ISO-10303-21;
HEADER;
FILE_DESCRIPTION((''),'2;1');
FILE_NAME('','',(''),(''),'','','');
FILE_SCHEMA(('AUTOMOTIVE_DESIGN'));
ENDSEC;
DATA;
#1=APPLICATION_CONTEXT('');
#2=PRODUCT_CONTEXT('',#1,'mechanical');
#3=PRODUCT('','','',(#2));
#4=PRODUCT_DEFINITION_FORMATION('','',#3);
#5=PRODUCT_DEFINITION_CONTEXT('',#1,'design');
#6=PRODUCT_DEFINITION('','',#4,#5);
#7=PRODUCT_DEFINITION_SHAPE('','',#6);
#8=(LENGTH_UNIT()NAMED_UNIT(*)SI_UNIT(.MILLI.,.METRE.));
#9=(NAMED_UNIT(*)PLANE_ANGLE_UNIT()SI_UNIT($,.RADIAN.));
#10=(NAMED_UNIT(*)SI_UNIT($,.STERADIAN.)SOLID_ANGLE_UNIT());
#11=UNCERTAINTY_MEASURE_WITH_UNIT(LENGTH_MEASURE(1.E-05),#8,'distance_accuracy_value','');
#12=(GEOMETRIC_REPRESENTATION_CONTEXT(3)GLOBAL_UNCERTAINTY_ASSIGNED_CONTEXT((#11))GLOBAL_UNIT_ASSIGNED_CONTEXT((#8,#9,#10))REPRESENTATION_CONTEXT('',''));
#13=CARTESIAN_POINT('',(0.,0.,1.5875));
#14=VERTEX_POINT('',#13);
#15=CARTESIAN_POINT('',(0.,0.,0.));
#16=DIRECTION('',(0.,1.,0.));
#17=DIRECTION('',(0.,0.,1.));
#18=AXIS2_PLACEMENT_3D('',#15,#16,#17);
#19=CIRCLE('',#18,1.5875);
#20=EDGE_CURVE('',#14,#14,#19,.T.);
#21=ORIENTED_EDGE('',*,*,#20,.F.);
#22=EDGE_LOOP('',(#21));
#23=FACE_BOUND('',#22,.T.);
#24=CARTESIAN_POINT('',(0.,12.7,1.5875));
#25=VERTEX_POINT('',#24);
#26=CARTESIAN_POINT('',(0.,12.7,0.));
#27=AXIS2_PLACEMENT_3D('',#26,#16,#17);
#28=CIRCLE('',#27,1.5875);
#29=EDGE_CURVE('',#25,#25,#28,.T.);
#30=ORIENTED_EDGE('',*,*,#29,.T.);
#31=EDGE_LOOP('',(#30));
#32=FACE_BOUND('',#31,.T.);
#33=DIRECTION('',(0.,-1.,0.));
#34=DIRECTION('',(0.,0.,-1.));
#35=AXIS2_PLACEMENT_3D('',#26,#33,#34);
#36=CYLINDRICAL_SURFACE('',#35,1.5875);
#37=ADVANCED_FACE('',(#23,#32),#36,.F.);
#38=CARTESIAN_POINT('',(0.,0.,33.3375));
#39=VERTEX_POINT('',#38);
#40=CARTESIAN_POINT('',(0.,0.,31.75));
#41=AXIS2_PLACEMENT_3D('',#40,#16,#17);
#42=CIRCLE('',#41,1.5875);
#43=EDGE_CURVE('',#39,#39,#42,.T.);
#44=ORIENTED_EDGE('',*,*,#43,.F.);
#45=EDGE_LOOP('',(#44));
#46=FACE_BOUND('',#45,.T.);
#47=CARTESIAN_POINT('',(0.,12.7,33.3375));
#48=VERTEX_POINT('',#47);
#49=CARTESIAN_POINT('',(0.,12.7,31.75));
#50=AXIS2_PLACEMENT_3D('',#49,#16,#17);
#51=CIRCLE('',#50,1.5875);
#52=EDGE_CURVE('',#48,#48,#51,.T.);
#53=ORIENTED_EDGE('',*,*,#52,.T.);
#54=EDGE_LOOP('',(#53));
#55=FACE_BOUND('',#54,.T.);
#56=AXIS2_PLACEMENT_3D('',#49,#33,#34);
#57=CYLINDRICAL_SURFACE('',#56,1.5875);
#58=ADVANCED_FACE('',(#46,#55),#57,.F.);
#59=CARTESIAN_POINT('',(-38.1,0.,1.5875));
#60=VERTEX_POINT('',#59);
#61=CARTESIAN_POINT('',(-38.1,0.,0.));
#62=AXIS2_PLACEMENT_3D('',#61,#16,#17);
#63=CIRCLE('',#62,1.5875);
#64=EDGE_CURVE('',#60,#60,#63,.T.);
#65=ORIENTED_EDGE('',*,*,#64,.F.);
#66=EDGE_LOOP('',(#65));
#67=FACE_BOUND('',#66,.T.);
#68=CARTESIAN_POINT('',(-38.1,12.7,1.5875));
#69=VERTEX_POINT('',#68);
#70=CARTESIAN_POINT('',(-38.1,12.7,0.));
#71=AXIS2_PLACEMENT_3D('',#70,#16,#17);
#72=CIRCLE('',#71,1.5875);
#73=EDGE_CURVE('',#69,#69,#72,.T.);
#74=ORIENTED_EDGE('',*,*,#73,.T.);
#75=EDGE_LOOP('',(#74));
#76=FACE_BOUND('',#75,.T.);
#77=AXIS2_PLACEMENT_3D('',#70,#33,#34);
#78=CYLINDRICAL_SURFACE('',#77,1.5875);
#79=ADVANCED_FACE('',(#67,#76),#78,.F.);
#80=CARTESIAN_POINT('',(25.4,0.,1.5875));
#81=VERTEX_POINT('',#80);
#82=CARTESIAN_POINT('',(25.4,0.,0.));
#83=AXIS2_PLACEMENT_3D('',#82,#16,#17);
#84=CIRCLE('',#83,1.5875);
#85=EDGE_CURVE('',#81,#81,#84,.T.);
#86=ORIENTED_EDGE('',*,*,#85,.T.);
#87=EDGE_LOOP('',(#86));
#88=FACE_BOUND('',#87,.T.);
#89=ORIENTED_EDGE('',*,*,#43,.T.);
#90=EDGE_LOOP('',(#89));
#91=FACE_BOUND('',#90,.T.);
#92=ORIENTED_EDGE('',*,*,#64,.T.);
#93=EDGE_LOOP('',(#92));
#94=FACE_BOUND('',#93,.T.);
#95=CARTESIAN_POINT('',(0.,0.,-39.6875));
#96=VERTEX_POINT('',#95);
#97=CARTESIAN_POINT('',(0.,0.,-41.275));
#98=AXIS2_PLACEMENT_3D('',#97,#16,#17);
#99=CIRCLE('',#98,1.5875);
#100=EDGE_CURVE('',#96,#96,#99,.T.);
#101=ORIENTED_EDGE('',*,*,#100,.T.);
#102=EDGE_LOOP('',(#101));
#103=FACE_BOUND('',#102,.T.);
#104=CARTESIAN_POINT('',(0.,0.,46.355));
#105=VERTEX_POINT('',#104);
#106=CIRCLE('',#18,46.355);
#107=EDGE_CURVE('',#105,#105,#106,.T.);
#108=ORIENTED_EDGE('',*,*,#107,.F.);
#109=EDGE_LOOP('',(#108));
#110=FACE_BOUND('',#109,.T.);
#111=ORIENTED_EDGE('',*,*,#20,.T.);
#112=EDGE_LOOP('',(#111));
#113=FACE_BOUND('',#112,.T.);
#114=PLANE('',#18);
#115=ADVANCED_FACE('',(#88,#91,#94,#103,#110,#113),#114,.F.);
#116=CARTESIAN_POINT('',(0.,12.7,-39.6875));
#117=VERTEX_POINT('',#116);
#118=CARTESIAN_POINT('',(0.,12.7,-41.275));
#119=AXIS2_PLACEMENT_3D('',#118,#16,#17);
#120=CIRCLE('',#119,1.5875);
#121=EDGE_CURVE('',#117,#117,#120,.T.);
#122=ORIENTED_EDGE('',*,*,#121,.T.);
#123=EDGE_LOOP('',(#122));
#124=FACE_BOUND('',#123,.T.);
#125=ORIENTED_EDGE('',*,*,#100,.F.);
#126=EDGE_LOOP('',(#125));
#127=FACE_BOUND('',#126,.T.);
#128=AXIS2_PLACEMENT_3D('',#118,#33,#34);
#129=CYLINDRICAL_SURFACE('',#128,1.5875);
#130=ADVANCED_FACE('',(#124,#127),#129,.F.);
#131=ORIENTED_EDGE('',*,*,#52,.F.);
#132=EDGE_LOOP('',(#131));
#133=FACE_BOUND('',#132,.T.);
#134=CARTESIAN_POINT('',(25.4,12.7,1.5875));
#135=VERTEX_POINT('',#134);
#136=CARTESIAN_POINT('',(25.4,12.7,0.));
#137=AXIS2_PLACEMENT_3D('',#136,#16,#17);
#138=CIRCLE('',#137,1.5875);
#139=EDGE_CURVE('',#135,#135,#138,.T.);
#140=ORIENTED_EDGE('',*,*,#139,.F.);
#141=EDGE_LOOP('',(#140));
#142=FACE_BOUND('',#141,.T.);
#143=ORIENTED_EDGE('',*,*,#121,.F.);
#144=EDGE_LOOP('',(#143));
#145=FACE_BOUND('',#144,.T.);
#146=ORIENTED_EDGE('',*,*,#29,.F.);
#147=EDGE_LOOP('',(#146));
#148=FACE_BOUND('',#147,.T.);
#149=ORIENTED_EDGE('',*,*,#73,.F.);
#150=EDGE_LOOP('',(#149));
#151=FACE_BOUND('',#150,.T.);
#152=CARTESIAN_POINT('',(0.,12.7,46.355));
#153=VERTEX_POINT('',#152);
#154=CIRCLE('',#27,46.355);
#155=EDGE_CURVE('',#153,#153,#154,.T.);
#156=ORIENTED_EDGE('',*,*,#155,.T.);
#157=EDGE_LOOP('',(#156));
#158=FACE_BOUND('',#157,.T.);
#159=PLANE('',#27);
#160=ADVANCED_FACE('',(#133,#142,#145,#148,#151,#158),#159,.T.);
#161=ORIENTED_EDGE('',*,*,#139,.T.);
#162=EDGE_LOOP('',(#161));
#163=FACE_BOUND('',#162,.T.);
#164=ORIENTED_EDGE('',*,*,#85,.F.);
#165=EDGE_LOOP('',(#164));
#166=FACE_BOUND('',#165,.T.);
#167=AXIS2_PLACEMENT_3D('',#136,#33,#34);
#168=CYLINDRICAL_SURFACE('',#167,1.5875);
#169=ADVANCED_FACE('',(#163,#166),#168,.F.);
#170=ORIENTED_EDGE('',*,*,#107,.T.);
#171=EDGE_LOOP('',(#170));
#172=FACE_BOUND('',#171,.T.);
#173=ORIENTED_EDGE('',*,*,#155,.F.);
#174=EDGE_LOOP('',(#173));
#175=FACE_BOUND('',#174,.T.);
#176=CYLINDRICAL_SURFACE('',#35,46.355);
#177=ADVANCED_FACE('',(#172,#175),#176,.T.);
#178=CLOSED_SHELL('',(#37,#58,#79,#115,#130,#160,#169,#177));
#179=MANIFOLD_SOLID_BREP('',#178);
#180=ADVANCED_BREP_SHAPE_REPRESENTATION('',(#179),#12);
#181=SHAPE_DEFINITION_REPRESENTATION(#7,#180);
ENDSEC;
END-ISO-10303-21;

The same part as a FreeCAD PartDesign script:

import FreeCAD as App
import Part
import Sketcher

V = App.Vector
Q = App.Units.Quantity

doc = App.newDocument("Part")
body = doc.addObject("PartDesign::Body", "Body")

# Sketch on XZ plane
sketch1 = doc.addObject("Sketcher::SketchObject", "Sketch")
body.addObject(sketch1)
sketch1.AttachmentSupport = (doc.XZ_Plane, [""])
sketch1.MapMode = "FlatFace"
sketch1.addGeometry([
    Part.Circle(V(0, 0, 0), V(0, 0, 1), 46.4),  # 0
    Part.Circle(V(-38.1, 0, 0), V(0, 0, 1), 1.6),  # 1
    Part.Circle(V(0, -41.3, 0), V(0, 0, 1), 1.6),  # 2
    Part.Circle(V(0, 0, 0), V(0, 0, 1), 1.6),  # 3
    Part.Circle(V(0, 31.8, 0), V(0, 0, 1), 1.6),  # 4
    Part.Circle(V(25.4, 0, 0), V(0, 0, 1), 1.6),  # 5
], False)
sketch1.addConstraint([
    Sketcher.Constraint("Coincident", 0, 3, -1, 1),
    Sketcher.Constraint("Coincident", 3, 3, -1, 1),
    Sketcher.Constraint("Equal", 1, 2),
    Sketcher.Constraint("Equal", 2, 3),
    Sketcher.Constraint("Equal", 3, 4),
    Sketcher.Constraint("Equal", 4, 5),
    Sketcher.Constraint("PointOnObject", 1, 3, -1),
    Sketcher.Constraint("PointOnObject", 2, 3, -2),
    Sketcher.Constraint("PointOnObject", 4, 3, -2),
    Sketcher.Constraint("PointOnObject", 5, 3, -1),
    Sketcher.Constraint("Diameter", 0, Q("3.65 in")),
    Sketcher.Constraint("Diameter", 1, Q("0.125 in")),
    Sketcher.Constraint("DistanceX", -1, 1, 5, 3, Q("1 in")),
    Sketcher.Constraint("DistanceX", 1, 3, -1, 1, Q("1.5 in")),
    Sketcher.Constraint("DistanceY", -1, 1, 4, 3, Q("1.25 in")),
    Sketcher.Constraint("DistanceY", 2, 3, -1, 1, Q("1.625 in")),
])
pad1 = doc.addObject("PartDesign::Pad", "Pad")
body.addObject(pad1)
pad1.Profile = sketch1
pad1.Length = Q("0.5 in")
pad1.Reversed = True

doc.recompute()
